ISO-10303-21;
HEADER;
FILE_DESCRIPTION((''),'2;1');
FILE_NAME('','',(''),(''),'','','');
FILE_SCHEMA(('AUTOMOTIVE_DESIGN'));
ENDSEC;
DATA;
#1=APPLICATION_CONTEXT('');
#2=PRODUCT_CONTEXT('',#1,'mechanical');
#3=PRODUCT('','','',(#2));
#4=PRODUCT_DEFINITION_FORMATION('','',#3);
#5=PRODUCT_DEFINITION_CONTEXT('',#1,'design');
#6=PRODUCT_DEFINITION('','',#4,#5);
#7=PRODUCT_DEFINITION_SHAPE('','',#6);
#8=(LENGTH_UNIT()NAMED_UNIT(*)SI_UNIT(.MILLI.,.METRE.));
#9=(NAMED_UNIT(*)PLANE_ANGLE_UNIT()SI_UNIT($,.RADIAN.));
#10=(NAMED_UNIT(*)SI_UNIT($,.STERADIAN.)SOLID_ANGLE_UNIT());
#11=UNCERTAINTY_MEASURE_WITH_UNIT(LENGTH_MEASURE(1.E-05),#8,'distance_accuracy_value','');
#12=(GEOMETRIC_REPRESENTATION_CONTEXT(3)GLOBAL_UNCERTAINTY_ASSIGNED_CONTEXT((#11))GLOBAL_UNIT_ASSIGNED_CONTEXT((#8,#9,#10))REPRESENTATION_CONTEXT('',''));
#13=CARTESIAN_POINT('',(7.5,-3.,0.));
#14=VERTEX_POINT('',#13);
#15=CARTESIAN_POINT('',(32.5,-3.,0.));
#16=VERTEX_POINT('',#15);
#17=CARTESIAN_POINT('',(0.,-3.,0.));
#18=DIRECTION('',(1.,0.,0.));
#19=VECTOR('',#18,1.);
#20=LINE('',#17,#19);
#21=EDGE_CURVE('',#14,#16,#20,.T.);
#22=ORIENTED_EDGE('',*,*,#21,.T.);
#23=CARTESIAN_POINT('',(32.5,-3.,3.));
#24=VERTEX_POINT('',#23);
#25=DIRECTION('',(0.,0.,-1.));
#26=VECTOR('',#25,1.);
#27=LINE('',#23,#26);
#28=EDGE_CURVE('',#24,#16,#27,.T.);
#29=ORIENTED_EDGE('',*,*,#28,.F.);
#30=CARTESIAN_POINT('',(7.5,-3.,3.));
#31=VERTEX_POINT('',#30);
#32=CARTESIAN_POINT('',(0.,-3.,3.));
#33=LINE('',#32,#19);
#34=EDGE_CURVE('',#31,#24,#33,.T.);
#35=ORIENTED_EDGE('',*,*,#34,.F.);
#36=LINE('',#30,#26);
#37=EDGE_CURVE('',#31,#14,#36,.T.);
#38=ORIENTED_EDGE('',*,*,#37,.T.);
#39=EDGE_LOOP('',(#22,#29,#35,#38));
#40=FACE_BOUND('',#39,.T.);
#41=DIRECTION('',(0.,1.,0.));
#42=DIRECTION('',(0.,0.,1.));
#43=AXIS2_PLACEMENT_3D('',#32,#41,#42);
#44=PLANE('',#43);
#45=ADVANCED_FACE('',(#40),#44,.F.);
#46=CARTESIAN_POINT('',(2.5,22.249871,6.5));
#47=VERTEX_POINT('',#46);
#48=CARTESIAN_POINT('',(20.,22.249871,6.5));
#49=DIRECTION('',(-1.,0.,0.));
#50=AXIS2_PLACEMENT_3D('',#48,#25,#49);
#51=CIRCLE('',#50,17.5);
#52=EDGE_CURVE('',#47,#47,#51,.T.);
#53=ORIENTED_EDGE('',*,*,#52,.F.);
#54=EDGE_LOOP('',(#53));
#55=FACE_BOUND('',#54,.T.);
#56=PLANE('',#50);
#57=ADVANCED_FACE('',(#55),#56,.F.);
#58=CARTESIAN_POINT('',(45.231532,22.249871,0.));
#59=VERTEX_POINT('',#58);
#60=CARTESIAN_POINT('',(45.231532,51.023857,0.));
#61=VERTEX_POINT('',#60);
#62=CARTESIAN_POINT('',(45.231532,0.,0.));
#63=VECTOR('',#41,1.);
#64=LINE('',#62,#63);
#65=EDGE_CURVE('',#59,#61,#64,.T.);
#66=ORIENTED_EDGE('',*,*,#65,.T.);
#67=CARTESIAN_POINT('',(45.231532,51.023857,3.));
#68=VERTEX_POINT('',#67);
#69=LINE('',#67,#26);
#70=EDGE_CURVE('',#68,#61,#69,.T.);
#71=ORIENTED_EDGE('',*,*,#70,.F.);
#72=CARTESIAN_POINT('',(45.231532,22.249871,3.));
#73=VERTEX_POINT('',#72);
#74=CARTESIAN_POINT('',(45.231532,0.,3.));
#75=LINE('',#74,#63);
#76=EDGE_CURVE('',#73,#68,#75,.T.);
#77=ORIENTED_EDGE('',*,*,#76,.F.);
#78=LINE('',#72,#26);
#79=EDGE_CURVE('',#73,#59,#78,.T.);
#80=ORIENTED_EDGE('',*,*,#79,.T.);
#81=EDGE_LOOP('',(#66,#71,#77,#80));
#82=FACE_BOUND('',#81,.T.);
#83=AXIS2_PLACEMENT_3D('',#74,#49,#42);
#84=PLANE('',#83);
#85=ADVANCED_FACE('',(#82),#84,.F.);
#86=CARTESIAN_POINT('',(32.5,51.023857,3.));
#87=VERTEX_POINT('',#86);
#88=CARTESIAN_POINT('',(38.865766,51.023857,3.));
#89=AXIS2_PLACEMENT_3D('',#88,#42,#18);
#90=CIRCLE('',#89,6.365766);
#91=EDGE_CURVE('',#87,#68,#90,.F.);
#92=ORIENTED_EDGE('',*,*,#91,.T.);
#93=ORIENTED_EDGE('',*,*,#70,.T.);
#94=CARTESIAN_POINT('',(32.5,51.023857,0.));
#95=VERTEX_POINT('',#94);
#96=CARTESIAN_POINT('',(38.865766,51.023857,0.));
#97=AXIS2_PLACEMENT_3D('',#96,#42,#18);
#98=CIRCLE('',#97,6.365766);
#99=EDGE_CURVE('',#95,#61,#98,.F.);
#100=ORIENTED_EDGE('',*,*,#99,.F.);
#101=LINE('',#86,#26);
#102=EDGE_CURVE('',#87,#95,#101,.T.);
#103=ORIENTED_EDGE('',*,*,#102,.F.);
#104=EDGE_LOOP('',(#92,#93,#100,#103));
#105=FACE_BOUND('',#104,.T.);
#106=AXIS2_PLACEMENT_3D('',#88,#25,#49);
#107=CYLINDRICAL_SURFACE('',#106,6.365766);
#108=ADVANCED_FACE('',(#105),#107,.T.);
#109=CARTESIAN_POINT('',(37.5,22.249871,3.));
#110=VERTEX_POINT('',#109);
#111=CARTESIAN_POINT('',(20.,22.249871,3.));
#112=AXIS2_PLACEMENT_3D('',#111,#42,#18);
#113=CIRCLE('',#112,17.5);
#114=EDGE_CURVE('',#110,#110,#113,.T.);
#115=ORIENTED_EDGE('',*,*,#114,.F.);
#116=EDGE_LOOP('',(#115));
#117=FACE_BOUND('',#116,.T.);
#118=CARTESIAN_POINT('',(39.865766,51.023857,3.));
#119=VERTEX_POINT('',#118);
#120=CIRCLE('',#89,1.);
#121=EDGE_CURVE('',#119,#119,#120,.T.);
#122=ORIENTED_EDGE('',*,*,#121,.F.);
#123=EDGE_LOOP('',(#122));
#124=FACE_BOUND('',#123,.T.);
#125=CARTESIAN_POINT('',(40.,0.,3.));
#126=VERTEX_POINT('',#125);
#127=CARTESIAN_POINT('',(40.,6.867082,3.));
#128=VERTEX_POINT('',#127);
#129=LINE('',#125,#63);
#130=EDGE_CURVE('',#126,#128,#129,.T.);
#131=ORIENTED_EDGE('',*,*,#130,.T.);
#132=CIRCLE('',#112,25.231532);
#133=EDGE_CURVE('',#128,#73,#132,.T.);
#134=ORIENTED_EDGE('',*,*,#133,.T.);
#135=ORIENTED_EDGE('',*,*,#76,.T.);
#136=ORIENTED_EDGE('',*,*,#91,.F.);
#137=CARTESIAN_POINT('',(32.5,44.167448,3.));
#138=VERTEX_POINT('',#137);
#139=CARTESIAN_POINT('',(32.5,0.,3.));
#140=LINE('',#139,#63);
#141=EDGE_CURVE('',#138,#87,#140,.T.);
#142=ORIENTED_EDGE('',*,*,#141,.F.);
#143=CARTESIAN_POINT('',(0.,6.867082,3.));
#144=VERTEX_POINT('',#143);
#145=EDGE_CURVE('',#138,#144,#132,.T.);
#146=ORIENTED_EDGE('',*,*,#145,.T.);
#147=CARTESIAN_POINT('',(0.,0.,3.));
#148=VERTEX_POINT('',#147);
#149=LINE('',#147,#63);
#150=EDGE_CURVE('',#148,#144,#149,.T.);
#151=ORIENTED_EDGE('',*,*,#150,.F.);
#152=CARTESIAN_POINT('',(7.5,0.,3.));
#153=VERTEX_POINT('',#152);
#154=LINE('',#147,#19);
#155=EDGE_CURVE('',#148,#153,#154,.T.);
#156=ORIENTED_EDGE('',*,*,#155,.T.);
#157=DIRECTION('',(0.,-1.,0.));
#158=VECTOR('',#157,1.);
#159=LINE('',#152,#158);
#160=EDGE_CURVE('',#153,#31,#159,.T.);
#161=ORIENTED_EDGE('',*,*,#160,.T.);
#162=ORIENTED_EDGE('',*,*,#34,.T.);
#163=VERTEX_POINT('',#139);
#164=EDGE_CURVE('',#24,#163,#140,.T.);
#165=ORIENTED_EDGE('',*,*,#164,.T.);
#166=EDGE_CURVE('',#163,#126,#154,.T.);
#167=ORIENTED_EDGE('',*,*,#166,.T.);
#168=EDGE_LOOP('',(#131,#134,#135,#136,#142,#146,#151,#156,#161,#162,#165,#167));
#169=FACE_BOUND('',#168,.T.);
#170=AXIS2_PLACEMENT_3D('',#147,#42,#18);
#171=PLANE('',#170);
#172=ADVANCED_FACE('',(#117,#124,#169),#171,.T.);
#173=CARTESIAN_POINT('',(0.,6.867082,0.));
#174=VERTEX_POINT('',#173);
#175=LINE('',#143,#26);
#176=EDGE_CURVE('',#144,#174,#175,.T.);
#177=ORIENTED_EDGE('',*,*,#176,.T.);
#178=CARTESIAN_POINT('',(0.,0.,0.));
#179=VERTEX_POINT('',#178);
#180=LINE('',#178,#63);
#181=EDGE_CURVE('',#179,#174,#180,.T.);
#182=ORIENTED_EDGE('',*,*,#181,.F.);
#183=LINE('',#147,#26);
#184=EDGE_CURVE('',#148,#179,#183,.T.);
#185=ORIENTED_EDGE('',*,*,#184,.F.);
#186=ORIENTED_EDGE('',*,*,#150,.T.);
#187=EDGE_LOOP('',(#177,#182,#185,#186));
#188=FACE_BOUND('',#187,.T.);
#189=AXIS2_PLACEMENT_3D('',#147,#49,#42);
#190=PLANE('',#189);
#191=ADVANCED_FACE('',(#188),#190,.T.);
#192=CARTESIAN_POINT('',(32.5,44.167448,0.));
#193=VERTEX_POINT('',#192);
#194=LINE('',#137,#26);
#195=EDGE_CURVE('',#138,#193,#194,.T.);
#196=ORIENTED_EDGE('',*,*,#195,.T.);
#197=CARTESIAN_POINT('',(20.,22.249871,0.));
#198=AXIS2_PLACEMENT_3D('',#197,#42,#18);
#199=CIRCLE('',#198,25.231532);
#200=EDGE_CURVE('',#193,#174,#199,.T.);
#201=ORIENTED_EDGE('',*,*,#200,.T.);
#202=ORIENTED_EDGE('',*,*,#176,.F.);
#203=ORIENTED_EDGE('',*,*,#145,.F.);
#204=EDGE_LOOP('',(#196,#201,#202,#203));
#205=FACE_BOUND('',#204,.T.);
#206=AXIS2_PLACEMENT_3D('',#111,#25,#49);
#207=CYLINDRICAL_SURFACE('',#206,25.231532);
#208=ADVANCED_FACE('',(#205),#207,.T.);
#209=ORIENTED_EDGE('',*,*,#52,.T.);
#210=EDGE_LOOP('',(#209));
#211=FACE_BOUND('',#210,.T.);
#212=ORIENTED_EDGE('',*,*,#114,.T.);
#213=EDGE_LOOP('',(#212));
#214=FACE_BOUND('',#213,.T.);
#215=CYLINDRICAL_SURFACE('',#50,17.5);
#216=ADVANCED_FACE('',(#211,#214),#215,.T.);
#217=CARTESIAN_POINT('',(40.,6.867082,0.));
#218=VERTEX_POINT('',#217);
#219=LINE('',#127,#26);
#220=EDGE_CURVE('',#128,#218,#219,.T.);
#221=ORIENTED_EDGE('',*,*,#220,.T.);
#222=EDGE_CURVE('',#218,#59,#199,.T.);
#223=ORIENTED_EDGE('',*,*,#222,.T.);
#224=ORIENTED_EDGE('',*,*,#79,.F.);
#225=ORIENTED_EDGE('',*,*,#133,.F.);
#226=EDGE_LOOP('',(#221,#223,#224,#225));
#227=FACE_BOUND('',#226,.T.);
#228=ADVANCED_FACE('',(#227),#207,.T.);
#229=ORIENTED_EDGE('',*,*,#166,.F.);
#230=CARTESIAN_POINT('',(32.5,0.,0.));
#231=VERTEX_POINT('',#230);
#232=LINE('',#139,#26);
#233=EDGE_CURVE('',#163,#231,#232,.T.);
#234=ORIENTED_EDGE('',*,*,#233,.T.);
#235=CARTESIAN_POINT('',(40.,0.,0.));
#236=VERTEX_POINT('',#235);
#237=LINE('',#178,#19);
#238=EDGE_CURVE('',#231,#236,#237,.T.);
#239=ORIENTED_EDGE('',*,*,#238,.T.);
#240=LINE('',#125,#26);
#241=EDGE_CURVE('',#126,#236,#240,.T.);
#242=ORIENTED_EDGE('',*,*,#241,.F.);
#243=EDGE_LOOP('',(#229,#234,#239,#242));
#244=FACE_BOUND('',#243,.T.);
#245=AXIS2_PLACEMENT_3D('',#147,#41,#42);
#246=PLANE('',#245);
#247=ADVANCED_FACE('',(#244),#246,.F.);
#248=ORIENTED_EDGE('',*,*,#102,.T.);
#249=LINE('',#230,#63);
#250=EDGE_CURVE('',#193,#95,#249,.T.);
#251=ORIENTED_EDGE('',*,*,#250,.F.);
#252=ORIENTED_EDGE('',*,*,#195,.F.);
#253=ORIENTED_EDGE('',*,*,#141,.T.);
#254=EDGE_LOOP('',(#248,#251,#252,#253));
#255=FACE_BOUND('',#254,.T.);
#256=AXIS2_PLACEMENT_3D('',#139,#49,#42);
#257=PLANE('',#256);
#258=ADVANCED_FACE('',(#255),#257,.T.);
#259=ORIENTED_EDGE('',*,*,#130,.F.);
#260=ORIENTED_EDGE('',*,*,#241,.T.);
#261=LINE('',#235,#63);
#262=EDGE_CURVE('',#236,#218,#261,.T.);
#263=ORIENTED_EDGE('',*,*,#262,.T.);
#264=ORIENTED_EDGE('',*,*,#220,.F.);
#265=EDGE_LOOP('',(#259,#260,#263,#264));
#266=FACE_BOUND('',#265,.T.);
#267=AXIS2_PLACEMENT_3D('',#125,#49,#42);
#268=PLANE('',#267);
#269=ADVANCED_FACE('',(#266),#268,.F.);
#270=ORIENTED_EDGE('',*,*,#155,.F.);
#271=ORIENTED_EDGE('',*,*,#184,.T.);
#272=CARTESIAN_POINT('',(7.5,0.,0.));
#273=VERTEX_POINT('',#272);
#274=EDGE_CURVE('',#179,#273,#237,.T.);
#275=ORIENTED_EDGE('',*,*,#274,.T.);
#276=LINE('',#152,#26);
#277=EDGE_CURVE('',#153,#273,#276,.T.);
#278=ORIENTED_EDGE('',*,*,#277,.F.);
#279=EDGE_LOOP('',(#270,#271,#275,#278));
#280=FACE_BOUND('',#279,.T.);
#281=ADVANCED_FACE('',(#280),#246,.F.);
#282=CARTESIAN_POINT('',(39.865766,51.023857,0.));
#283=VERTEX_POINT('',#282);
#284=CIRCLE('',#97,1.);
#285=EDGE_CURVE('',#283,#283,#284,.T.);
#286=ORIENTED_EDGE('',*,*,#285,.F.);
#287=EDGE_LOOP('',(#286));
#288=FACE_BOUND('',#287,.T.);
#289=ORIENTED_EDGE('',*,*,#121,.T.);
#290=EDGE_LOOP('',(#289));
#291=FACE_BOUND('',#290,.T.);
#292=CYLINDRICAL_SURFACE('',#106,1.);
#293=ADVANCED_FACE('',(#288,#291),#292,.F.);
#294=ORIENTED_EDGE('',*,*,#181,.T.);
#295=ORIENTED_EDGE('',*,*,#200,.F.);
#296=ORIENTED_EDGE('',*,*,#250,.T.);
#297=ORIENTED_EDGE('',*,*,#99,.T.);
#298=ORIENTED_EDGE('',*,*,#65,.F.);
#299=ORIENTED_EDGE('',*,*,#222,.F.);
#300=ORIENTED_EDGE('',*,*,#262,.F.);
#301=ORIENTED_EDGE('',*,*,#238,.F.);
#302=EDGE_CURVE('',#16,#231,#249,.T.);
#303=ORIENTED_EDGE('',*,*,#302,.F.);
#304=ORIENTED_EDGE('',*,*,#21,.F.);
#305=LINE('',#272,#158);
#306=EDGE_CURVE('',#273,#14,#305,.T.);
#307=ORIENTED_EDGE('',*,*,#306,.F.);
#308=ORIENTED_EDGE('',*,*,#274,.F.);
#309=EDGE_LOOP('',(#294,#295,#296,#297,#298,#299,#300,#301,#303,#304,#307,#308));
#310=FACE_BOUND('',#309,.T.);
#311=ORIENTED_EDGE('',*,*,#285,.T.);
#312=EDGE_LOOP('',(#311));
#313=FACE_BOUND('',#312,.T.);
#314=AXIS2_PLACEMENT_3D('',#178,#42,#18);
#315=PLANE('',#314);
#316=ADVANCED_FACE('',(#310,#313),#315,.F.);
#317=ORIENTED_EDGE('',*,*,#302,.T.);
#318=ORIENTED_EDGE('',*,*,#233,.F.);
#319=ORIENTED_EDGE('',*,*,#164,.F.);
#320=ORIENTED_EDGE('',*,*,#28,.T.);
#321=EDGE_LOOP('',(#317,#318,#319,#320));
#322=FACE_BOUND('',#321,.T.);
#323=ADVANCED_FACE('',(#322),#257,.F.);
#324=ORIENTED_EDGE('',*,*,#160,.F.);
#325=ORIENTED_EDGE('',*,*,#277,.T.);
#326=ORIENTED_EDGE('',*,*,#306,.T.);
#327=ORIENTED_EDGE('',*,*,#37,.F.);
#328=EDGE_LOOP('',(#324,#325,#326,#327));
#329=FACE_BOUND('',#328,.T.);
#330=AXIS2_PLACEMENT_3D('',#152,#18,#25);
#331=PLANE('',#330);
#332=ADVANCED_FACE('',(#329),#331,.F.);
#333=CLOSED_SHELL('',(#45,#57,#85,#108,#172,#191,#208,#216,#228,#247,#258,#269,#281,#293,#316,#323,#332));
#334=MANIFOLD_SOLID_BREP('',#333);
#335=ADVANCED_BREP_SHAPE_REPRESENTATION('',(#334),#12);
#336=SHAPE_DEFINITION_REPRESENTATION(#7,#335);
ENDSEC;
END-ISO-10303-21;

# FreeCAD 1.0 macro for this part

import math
import FreeCAD as App
import Part
import Sketcher

V = App.Vector

doc = App.newDocument("Part")
params = doc.addObject("Spreadsheet::Sheet", "Params")
for row, (alias, value) in enumerate([
    ("sketch1_diameter", "2 mm"),
    ("sketch1_diameter2", "20 mm"),
    ("sketch1_width", "25 mm"),
    ("sketch1_height", "3 mm"),
    ("sketch1_width2", "7.5 mm"),
    ("pad1_length", "3 mm"),
    ("sketch2_diameter", "35 mm"),
    ("pad2_length", "6.5 mm"),
], start=1):
    params.set(f"A{row}", alias)
    params.set(f"B{row}", "=" + value)
    params.setAlias(f"B{row}", alias)

body = doc.addObject("PartDesign::Body", "Body")

# Sketch on XY plane
sketch1 = body.newObject("Sketcher::SketchObject", "Sketch")
sketch1.AttachmentSupport = (doc.getObject("XY_Plane"), [""])
sketch1.MapMode = "FlatFace"
sketch1.addGeometry(Part.LineSegment(V(0, 0, 0), V(7.5, 0, 0)), False)
sketch1.addGeometry(Part.LineSegment(V(7.5, 0, 0), V(7.5, -3, 0)), False)
sketch1.addGeometry(Part.LineSegment(V(7.5, -3, 0), V(32.5, -3, 0)), False)
sketch1.addGeometry(Part.LineSegment(V(32.5, -3, 0), V(32.5, 0, 0)), False)
sketch1.addGeometry(Part.LineSegment(V(32.5, 0, 0), V(40, 0, 0)), False)
sketch1.addGeometry(Part.LineSegment(V(40, 0, 0), V(40, 6.867082, 0)), False)
sketch1.addGeometry(Part.ArcOfCircle(Part.Circle(V(20, 22.249871, 0), V(0, 0, 1), 25.231532), math.radians(-37.565304), math.radians(0)), False)
sketch1.addGeometry(Part.LineSegment(V(45.231532, 22.249871, 0), V(45.231532, 51.023857, 0)), False)
sketch1.addGeometry(Part.ArcOfCircle(Part.Circle(V(38.865766, 51.023857, 0), V(0, 0, 1), 6.365766), math.radians(0), math.radians(180)), False)
sketch1.addGeometry(Part.LineSegment(V(32.5, 51.023857, 0), V(32.5, 44.167448, 0)), False)
sketch1.addGeometry(Part.ArcOfCircle(Part.Circle(V(20, 22.249871, 0), V(0, 0, 1), 25.231532), math.radians(60.303088), math.radians(217.565304)), False)
sketch1.addGeometry(Part.LineSegment(V(0, 6.867082, 0), V(0, 0, 0)), False)
sketch1.addGeometry(Part.Circle(V(38.865766, 51.023857, 0), V(0, 0, 1), 1), False)
sketch1.addGeometry(Part.Circle(V(20, 22.249871, 0), V(0, 0, 1), 10), False)
sketch1.addConstraint(Sketcher.Constraint("Coincident", 0, 2, 1, 1))
sketch1.addConstraint(Sketcher.Constraint("Coincident", 1, 2, 2, 1))
sketch1.addConstraint(Sketcher.Constraint("Coincident", 2, 2, 3, 1))
sketch1.addConstraint(Sketcher.Constraint("Coincident", 3, 2, 4, 1))
sketch1.addConstraint(Sketcher.Constraint("Coincident", 4, 2, 5, 1))
sketch1.addConstraint(Sketcher.Constraint("Coincident", 5, 2, 6, 1))
sketch1.addConstraint(Sketcher.Constraint("Tangent", 6, 2, 7, 1))
sketch1.addConstraint(Sketcher.Constraint("Tangent", 7, 2, 8, 1))
sketch1.addConstraint(Sketcher.Constraint("Tangent", 8, 2, 9, 1))
sketch1.addConstraint(Sketcher.Constraint("Coincident", 9, 2, 10, 1))
sketch1.addConstraint(Sketcher.Constraint("Coincident", 10, 2, 11, 1))
sketch1.addConstraint(Sketcher.Constraint("Coincident", 11, 2, 0, 1))
sketch1.addConstraint(Sketcher.Constraint("Horizontal", 0))
sketch1.addConstraint(Sketcher.Constraint("Vertical", 1))
sketch1.addConstraint(Sketcher.Constraint("Horizontal", 2))
sketch1.addConstraint(Sketcher.Constraint("Vertical", 3))
sketch1.addConstraint(Sketcher.Constraint("Horizontal", 4))
sketch1.addConstraint(Sketcher.Constraint("Vertical", 5))
sketch1.addConstraint(Sketcher.Constraint("Vertical", 7))
sketch1.addConstraint(Sketcher.Constraint("Vertical", 9))
sketch1.addConstraint(Sketcher.Constraint("Vertical", 11))
sketch1.addConstraint(Sketcher.Constraint("Coincident", 11, 2, -1, 1))
sketch1.addConstraint(Sketcher.Constraint("Coincident", 10, 3, 6, 3))
sketch1.addConstraint(Sketcher.Constraint("Coincident", 12, 3, 8, 3))
sketch1.addConstraint(Sketcher.Constraint("Coincident", 13, 3, 6, 3))
sketch1.addConstraint(Sketcher.Constraint("Equal", 6, 10))
sketch1.addConstraint(Sketcher.Constraint("PointOnObject", 3, 2, -1))
sketch1.addConstraint(Sketcher.Constraint("Horizontal", 5, 2, 10, 2))
sketch1.addConstraint(Sketcher.Constraint("Vertical", 3, 2, 8, 2))
sketch1.addConstraint(Sketcher.Constraint("Equal", 0, 4))
sketch1.addConstraint(Sketcher.Constraint("Diameter", 12, 2.0))
sketch1.addConstraint(Sketcher.Constraint("Diameter", 13, 20.0))
sketch1.addConstraint(Sketcher.Constraint("DistanceX", 2, 1, 2, 2, 25.0))
sketch1.addConstraint(Sketcher.Constraint("DistanceY", 1, 2, 1, 1, 3.0))
sketch1.addConstraint(Sketcher.Constraint("DistanceX", 0, 1, 0, 2, 7.5))
sketch1.addConstraint(Sketcher.Constraint("Radius", 6, 25.231532))
sketch1.addConstraint(Sketcher.Constraint("DistanceY", 5, 1, 5, 2, 6.867082))
sketch1.addConstraint(Sketcher.Constraint("DistanceY", 9, 2, 9, 1, 6.85641))
sketch1.setExpression("Constraints[30]", "Params.sketch1_diameter")
sketch1.setExpression("Constraints[31]", "Params.sketch1_diameter2")
sketch1.setExpression("Constraints[32]", "Params.sketch1_width")
sketch1.setExpression("Constraints[33]", "Params.sketch1_height")
sketch1.setExpression("Constraints[34]", "Params.sketch1_width2")
pad1 = body.newObject("PartDesign::Pad", "Pad")
pad1.Profile = sketch1
pad1.setExpression("Length", "Params.pad1_length")

# Sketch on XY plane
sketch2 = body.newObject("Sketcher::SketchObject", "Sketch001")
sketch2.AttachmentSupport = (doc.getObject("XY_Plane"), [""])
sketch2.MapMode = "FlatFace"
sketch2.addGeometry(Part.Circle(V(20, 22.249871, 0), V(0, 0, 1), 17.5), False)
sketch2.addConstraint(Sketcher.Constraint("Diameter", 0, 35.0))
sketch2.addConstraint(Sketcher.Constraint("DistanceX", -1, 1, 0, 3, 20.0))
sketch2.addConstraint(Sketcher.Constraint("DistanceY", -1, 1, 0, 3, 22.249871))
sketch2.setExpression("Constraints[0]", "Params.sketch2_diameter")
pad2 = body.newObject("PartDesign::Pad", "Pad001")
pad2.Profile = sketch2
pad2.setExpression("Length", "Params.pad2_length")

doc.recompute()
